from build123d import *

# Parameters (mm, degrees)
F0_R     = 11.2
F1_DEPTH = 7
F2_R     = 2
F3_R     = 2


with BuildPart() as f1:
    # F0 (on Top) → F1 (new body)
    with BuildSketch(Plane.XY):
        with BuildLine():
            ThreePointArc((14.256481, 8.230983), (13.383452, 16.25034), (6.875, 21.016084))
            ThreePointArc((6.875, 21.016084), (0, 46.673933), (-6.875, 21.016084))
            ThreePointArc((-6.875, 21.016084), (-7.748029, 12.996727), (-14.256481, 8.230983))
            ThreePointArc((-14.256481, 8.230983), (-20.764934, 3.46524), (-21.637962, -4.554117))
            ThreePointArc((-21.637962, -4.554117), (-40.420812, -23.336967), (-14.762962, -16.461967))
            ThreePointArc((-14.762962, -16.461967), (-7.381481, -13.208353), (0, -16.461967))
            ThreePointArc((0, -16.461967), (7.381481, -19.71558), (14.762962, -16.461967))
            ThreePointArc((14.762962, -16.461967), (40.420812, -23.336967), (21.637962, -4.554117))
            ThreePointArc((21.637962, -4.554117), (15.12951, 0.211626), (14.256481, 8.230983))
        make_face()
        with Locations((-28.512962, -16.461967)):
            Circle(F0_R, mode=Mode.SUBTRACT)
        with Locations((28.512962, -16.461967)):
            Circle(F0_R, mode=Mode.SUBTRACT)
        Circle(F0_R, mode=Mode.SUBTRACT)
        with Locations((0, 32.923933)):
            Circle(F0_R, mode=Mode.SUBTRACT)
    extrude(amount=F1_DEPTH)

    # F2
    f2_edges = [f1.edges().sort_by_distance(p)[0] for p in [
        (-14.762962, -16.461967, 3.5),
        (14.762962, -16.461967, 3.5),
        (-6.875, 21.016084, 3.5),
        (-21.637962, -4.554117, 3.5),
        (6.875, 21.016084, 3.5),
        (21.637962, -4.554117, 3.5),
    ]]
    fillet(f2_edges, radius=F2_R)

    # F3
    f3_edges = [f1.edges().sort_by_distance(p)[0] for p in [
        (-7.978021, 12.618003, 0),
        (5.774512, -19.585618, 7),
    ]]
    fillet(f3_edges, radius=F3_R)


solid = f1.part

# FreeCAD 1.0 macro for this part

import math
import FreeCAD as App
import Part
import Sketcher


def edges_at(feature, points):
    """Names of the edges that pass closest to the given points."""
    edges = feature.Shape.Edges
    near = lambda p: min(range(len(edges)), key=lambda i: edges[i].distToShape(Part.Vertex(*p))[0])
    return sorted({f"Edge{near(p) + 1}" for p in points})

doc = App.newDocument("Part")
body = doc.addObject("PartDesign::Body", "Body")

sketch1 = body.newObject("Sketcher::SketchObject", "Sketch")
sketch1.AttachmentSupport = (doc.getObject("XY_Plane"), [""])
sketch1.MapMode = "FlatFace"
sketch1.addGeometry(Part.ArcOfCircle(Part.Circle(App.Vector(5, 11, 0), App.Vector(0, 0, 1), 10), math.radians(-18), math.radians(78)), False)
sketch1.addGeometry(Part.ArcOfCircle(Part.Circle(App.Vector(0, 33, 0), App.Vector(0, 0, 1), 14), math.radians(-60), math.radians(240)), False)
sketch1.addGeometry(Part.ArcOfCircle(Part.Circle(App.Vector(-16, 18, 0), App.Vector(0, 0, 1), 10), math.radians(-78), math.radians(18)), False)
sketch1.addGeometry(Part.ArcOfCircle(Part.Circle(App.Vector(-12, -2, 0), App.Vector(0, 0, 1), 10), math.radians(102), math.radians(198)), False)
sketch1.addGeometry(Part.ArcOfCircle(Part.Circle(App.Vector(-29, -16, 0), App.Vector(0, 0, 1), 14), math.radians(60), math.radians(360)), False)
sketch1.addGeometry(Part.ArcOfCircle(Part.Circle(App.Vector(-7, -23, 0), App.Vector(0, 0, 1), 10), math.radians(42), math.radians(138)), False)
sketch1.addGeometry(Part.ArcOfCircle(Part.Circle(App.Vector(7, -10, 0), App.Vector(0, 0, 1), 10), math.radians(-138), math.radians(-42)), False)
sketch1.addGeometry(Part.ArcOfCircle(Part.Circle(App.Vector(29, -16, 0), App.Vector(0, 0, 1), 14), math.radians(-180), math.radians(120)), False)
sketch1.addGeometry(Part.ArcOfCircle(Part.Circle(App.Vector(24, 5, 0), App.Vector(0, 0, 1), 10), math.radians(162), math.radians(258)), False)
sketch1.addGeometry(Part.Circle(App.Vector(-29, -16, 0), App.Vector(0, 0, 1), 11), False)
sketch1.addGeometry(Part.Circle(App.Vector(0, 0, 0), App.Vector(0, 0, 1), 11), False)
sketch1.addGeometry(Part.Circle(App.Vector(29, -16, 0), App.Vector(0, 0, 1), 11), False)
sketch1.addGeometry(Part.Circle(App.Vector(0, 33, 0), App.Vector(0, 0, 1), 11), False)
sketch1.addConstraint(Sketcher.Constraint("Coincident", 0, 2, 1, 1))
sketch1.addConstraint(Sketcher.Constraint("Coincident", 1, 2, 2, 2))
sketch1.addConstraint(Sketcher.Constraint("Tangent", 2, 1, 3, 1))
sketch1.addConstraint(Sketcher.Constraint("Coincident", 3, 2, 4, 1))
sketch1.addConstraint(Sketcher.Constraint("Coincident", 4, 2, 5, 2))
sketch1.addConstraint(Sketcher.Constraint("Tangent", 5, 1, 6, 1))
sketch1.addConstraint(Sketcher.Constraint("Coincident", 6, 2, 7, 1))
sketch1.addConstraint(Sketcher.Constraint("Coincident", 7, 2, 8, 2))
sketch1.addConstraint(Sketcher.Constraint("Tangent", 8, 1, 0, 1))
sketch1.addConstraint(Sketcher.Constraint("Coincident", 10, 3, -1, 1))
sketch1.addConstraint(Sketcher.Constraint("Coincident", 9, 3, 4, 3))
sketch1.addConstraint(Sketcher.Constraint("Coincident", 11, 3, 7, 3))
sketch1.addConstraint(Sketcher.Constraint("Coincident", 12, 3, 1, 3))
sketch1.addConstraint(Sketcher.Constraint("Equal", 0, 2))
sketch1.addConstraint(Sketcher.Constraint("Equal", 1, 4))
sketch1.addConstraint(Sketcher.Constraint("Equal", 3, 5))
sketch1.addConstraint(Sketcher.Constraint("Equal", 2, 6))
sketch1.addConstraint(Sketcher.Constraint("Equal", 4, 7))
sketch1.addConstraint(Sketcher.Constraint("Equal", 6, 8))
sketch1.addConstraint(Sketcher.Constraint("Equal", 9, 10))
sketch1.addConstraint(Sketcher.Constraint("Equal", 10, 11))
sketch1.addConstraint(Sketcher.Constraint("Equal", 11, 12))
sketch1.addConstraint(Sketcher.Constraint("Symmetric", 4, 3, 7, 3, -2))
sketch1.addConstraint(Sketcher.Constraint("Symmetric", 0, 2, 1, 2, -2))
sketch1.addConstraint(Sketcher.Constraint("Symmetric", 2, 1, 8, 1, -2))
sketch1.addConstraint(Sketcher.Constraint("PointOnObject", 5, 1, -2))
sketch1.addConstraint(Sketcher.Constraint("Horizontal", 11, 3, 4, 2))
sketch1.addConstraint(Sketcher.Constraint("Horizontal", 4, 2, 5, 1))
sketch1.addConstraint(Sketcher.Constraint("Horizontal", 5, 1, 6, 2))
sketch1.addConstraint(Sketcher.Constraint("Horizontal", 3, 2, 7, 2))
sketch1.addConstraint(Sketcher.Constraint("Radius", 0, 10.000001))
sketch1.addConstraint(Sketcher.Constraint("Diameter", 9, 22.4))
sketch1.addConstraint(Sketcher.Constraint("Radius", 1, 13.75))
sketch1.addConstraint(Sketcher.Constraint("DistanceX", 1, 2, 0, 2, 13.75))
sketch1.addConstraint(Sketcher.Constraint("DistanceX", 4, 3, 3, 2, 6.875))
sketch1.addConstraint(Sketcher.Constraint("DistanceX", 2, 3, 3, 3, 4.303602))
sketch1.addConstraint(Sketcher.Constraint("DistanceY", 3, 3, 0, 3, 12.785098))
sketch1.addConstraint(Sketcher.Constraint("DistanceY", -1, 1, 0, 3, 11.25034))
pad1 = body.newObject("PartDesign::Pad", "Pad")
pad1.Profile = sketch1
pad1.Length = 7
doc.recompute()

fillet = body.newObject("PartDesign::Fillet", "Fillet")
fillet.Base = (pad1, edges_at(pad1, [
    (-14.763, -16.462, 3.5),
    (14.763, -16.462, 3.5),
    (-6.875, 21.016, 3.5),
    (-21.638, -4.554, 3.5),
    (6.875, 21.016, 3.5),
    (21.638, -4.554, 3.5),
]))
fillet.Radius = 2
doc.recompute()

fillet2 = body.newObject("PartDesign::Fillet", "Fillet001")
fillet2.Base = (fillet, edges_at(fillet, [(-7.978, 12.618, 0), (5.775, -19.586, 7)]))
fillet2.Radius = 2

doc.recompute()
